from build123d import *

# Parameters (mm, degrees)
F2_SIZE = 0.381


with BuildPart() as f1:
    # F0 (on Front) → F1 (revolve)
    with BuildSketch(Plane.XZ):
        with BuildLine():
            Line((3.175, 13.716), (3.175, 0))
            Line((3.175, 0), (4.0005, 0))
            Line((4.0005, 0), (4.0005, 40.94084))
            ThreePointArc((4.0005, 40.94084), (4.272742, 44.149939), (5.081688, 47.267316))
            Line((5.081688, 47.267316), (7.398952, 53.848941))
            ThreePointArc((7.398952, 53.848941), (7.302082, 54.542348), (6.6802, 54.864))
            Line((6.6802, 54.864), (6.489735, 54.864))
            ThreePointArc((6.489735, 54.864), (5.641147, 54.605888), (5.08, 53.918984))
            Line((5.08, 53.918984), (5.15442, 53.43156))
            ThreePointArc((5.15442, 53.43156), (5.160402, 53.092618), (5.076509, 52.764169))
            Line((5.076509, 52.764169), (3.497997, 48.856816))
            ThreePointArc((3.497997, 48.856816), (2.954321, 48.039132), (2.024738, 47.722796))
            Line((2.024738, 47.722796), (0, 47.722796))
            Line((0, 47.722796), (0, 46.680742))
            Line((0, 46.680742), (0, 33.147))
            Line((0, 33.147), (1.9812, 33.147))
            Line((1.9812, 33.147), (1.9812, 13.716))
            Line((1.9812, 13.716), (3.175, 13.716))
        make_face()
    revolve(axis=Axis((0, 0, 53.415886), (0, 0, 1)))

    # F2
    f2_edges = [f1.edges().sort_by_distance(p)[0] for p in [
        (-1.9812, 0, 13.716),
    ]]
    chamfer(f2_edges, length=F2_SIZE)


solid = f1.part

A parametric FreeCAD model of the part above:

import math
import FreeCAD as App
import Part
import Sketcher
Q = App.Units.Quantity


def edges_at(feature, points):
    """Names of the edges that pass closest to the given points."""
    edges = feature.Shape.Edges
    near = lambda p: min(range(len(edges)), key=lambda i: edges[i].distToShape(Part.Vertex(*p))[0])
    return sorted({f"Edge{near(p) + 1}" for p in points})

doc = App.newDocument("Part")
body = doc.addObject("PartDesign::Body", "Body")

# Sketch on XZ plane
sketch1 = doc.addObject("Sketcher::SketchObject", "Sketch")
body.addObject(sketch1)
sketch1.AttachmentSupport = (doc.XZ_Plane, [""])
sketch1.MapMode = "FlatFace"
sketch1.addGeometry([
    Part.LineSegment(App.Vector(3.175, 13.716, 0), App.Vector(3.175, 0, 0)),  # 0
    Part.LineSegment(App.Vector(3.175, 0, 0), App.Vector(4.0005, 0, 0)),  # 1
    Part.LineSegment(App.Vector(4.0005, 0, 0), App.Vector(4.0005, 40.94084, 0)),  # 2
    Part.ArcOfCircle(Part.Circle(App.Vector(23.050481, 40.940843, 0), App.Vector(0, 0, 1), 19.049981), math.radians(160.603797), math.radians(180.00001)),  # 3
    Part.LineSegment(App.Vector(5.081688, 47.267316, 0), App.Vector(7.398952, 53.848941, 0)),  # 4
    Part.ArcOfCircle(Part.Circle(App.Vector(6.6802, 54.102, 0), App.Vector(0, 0, 1), 0.762), math.radians(-19.396209), math.radians(89.999982)),  # 5
    Part.LineSegment(App.Vector(6.6802, 54.864, 0), App.Vector(6.489735, 54.864, 0)),  # 6
    Part.ArcOfCircle(Part.Circle(App.Vector(6.489737, 53.339998, 0), App.Vector(0, 0, 1), 1.524002), math.radians(90.000072), math.radians(157.671783)),  # 7
    Part.LineSegment(App.Vector(5.08, 53.918984, 0), App.Vector(5.15442, 53.43156, 0)),  # 8
    Part.ArcOfCircle(Part.Circle(App.Vector(3.898962, 53.239879, 0), App.Vector(0, 0, 1), 1.270006), math.radians(-21.997897), math.radians(8.680795)),  # 9
    Part.LineSegment(App.Vector(5.076509, 52.764169, 0), App.Vector(3.497997, 48.856816, 0)),  # 10
    Part.ArcOfCircle(Part.Circle(App.Vector(2.024739, 49.246795, 0), App.Vector(0, 0, 1), 1.523999), math.radians(-90.000027), math.radians(-14.826449)),  # 11
    Part.LineSegment(App.Vector(2.024738, 47.722796, 0), App.Vector(0, 47.722796, 0)),  # 12
    Part.LineSegment(App.Vector(0, 47.722796, 0), App.Vector(0, 33.147, 0)),  # 13
    Part.LineSegment(App.Vector(0, 33.147, 0), App.Vector(1.9812, 33.147, 0)),  # 14
    Part.LineSegment(App.Vector(1.9812, 33.147, 0), App.Vector(1.9812, 13.716, 0)),  # 15
    Part.LineSegment(App.Vector(1.9812, 13.716, 0), App.Vector(3.175, 13.716, 0)),  # 16
], False)
sketch1.addConstraint([
    Sketcher.Constraint("Coincident", 0, 2, 1, 1),
    Sketcher.Constraint("Coincident", 1, 2, 2, 1),
    Sketcher.Constraint("Tangent", 2, 2, 3, 2),
    Sketcher.Constraint("Tangent", 3, 1, 4, 1),
    Sketcher.Constraint("Tangent", 4, 2, 5, 1),
    Sketcher.Constraint("Tangent", 5, 2, 6, 1),
    Sketcher.Constraint("Tangent", 6, 2, 7, 1),
    Sketcher.Constraint("Coincident", 7, 2, 8, 1),
    Sketcher.Constraint("Tangent", 8, 2, 9, 2),
    Sketcher.Constraint("Tangent", 9, 1, 10, 1),
    Sketcher.Constraint("Coincident", 10, 2, 11, 2),
    Sketcher.Constraint("Tangent", 11, 1, 12, 1),
    Sketcher.Constraint("Coincident", 12, 2, 13, 1),
    Sketcher.Constraint("Coincident", 13, 2, 14, 1),
    Sketcher.Constraint("Coincident", 14, 2, 15, 1),
    Sketcher.Constraint("Coincident", 15, 2, 16, 1),
    Sketcher.Constraint("Coincident", 16, 2, 0, 1),
    Sketcher.Constraint("Vertical", 0),
    Sketcher.Constraint("Horizontal", 1),
    Sketcher.Constraint("Vertical", 2),
    Sketcher.Constraint("Horizontal", 6),
    Sketcher.Constraint("Horizontal", 12),
    Sketcher.Constraint("Vertical", 13),
    Sketcher.Constraint("Horizontal", 14),
    Sketcher.Constraint("Vertical", 15),
    Sketcher.Constraint("Horizontal", 16),
    Sketcher.Constraint("PointOnObject", 0, 2, -1),
    Sketcher.Constraint("PointOnObject", 12, 2, -2),
    Sketcher.Constraint("Radius", 5, Q("0.03 in")),
    Sketcher.Constraint("Radius", 7, Q("0.0600001 in")),
    Sketcher.Constraint("Radius", 11, Q("0.06 in")),
    Sketcher.Constraint("DistanceY", 0, 2, 0, 1, Q("0.54 in")),
    Sketcher.Constraint("DistanceY", -1, 1, 7, 3, Q("2.0999999 in")),
    Sketcher.Constraint("DistanceX", -1, 1, 7, 2, Q("0.2 in")),
    Sketcher.Constraint("DistanceX", 14, 1, 14, 2, Q("0.078 in")),
    Sketcher.Constraint("DistanceX", 16, 1, 16, 2, Q("0.047 in")),
    Sketcher.Constraint("DistanceY", 15, 2, 15, 1, Q("0.765 in")),
    Sketcher.Constraint("DistanceX", 1, 1, 1, 2, Q("0.0325 in")),
    Sketcher.Constraint("DistanceX", -1, 1, 5, 3, Q("0.263 in")),
    Sketcher.Constraint("Radius", 3, Q("19.049981 mm")),
    Sketcher.Constraint("Radius", 9, Q("1.270006 mm")),
    Sketcher.Constraint("DistanceX", 12, 2, 12, 1, Q("2.024738 mm")),
    Sketcher.Constraint("DistanceY", 2, 1, 2, 2, Q("40.94084 mm")),
    Sketcher.Constraint("DistanceX", 11, 3, 7, 3, Q("4.464998 mm")),
    Sketcher.Constraint("DistanceY", 3, 1, 10, 2, Q("1.5895 mm")),
    Sketcher.Constraint("DistanceY", 13, 2, 13, 1, Q("14.575796 mm")),
    Sketcher.Constraint("DistanceY", -1, 1, 9, 3, Q("53.239879 mm")),
    Sketcher.Constraint("DistanceX", -1, 1, 8, 2, Q("5.15442 mm")),
])
revolution = doc.addObject("PartDesign::Revolution", "Revolution")
body.addObject(revolution)
revolution.Profile = sketch1
revolution.ReferenceAxis = (sketch1, ["V_Axis"])
revolution.Angle = 360
doc.recompute()

chamfer = doc.addObject("PartDesign::Chamfer", "Chamfer")
body.addObject(chamfer)
chamfer.Base = (revolution, edges_at(revolution, [(-1.981, 0, 13.716)]))
chamfer.Size = Q("0.015 in")

doc.recompute()
